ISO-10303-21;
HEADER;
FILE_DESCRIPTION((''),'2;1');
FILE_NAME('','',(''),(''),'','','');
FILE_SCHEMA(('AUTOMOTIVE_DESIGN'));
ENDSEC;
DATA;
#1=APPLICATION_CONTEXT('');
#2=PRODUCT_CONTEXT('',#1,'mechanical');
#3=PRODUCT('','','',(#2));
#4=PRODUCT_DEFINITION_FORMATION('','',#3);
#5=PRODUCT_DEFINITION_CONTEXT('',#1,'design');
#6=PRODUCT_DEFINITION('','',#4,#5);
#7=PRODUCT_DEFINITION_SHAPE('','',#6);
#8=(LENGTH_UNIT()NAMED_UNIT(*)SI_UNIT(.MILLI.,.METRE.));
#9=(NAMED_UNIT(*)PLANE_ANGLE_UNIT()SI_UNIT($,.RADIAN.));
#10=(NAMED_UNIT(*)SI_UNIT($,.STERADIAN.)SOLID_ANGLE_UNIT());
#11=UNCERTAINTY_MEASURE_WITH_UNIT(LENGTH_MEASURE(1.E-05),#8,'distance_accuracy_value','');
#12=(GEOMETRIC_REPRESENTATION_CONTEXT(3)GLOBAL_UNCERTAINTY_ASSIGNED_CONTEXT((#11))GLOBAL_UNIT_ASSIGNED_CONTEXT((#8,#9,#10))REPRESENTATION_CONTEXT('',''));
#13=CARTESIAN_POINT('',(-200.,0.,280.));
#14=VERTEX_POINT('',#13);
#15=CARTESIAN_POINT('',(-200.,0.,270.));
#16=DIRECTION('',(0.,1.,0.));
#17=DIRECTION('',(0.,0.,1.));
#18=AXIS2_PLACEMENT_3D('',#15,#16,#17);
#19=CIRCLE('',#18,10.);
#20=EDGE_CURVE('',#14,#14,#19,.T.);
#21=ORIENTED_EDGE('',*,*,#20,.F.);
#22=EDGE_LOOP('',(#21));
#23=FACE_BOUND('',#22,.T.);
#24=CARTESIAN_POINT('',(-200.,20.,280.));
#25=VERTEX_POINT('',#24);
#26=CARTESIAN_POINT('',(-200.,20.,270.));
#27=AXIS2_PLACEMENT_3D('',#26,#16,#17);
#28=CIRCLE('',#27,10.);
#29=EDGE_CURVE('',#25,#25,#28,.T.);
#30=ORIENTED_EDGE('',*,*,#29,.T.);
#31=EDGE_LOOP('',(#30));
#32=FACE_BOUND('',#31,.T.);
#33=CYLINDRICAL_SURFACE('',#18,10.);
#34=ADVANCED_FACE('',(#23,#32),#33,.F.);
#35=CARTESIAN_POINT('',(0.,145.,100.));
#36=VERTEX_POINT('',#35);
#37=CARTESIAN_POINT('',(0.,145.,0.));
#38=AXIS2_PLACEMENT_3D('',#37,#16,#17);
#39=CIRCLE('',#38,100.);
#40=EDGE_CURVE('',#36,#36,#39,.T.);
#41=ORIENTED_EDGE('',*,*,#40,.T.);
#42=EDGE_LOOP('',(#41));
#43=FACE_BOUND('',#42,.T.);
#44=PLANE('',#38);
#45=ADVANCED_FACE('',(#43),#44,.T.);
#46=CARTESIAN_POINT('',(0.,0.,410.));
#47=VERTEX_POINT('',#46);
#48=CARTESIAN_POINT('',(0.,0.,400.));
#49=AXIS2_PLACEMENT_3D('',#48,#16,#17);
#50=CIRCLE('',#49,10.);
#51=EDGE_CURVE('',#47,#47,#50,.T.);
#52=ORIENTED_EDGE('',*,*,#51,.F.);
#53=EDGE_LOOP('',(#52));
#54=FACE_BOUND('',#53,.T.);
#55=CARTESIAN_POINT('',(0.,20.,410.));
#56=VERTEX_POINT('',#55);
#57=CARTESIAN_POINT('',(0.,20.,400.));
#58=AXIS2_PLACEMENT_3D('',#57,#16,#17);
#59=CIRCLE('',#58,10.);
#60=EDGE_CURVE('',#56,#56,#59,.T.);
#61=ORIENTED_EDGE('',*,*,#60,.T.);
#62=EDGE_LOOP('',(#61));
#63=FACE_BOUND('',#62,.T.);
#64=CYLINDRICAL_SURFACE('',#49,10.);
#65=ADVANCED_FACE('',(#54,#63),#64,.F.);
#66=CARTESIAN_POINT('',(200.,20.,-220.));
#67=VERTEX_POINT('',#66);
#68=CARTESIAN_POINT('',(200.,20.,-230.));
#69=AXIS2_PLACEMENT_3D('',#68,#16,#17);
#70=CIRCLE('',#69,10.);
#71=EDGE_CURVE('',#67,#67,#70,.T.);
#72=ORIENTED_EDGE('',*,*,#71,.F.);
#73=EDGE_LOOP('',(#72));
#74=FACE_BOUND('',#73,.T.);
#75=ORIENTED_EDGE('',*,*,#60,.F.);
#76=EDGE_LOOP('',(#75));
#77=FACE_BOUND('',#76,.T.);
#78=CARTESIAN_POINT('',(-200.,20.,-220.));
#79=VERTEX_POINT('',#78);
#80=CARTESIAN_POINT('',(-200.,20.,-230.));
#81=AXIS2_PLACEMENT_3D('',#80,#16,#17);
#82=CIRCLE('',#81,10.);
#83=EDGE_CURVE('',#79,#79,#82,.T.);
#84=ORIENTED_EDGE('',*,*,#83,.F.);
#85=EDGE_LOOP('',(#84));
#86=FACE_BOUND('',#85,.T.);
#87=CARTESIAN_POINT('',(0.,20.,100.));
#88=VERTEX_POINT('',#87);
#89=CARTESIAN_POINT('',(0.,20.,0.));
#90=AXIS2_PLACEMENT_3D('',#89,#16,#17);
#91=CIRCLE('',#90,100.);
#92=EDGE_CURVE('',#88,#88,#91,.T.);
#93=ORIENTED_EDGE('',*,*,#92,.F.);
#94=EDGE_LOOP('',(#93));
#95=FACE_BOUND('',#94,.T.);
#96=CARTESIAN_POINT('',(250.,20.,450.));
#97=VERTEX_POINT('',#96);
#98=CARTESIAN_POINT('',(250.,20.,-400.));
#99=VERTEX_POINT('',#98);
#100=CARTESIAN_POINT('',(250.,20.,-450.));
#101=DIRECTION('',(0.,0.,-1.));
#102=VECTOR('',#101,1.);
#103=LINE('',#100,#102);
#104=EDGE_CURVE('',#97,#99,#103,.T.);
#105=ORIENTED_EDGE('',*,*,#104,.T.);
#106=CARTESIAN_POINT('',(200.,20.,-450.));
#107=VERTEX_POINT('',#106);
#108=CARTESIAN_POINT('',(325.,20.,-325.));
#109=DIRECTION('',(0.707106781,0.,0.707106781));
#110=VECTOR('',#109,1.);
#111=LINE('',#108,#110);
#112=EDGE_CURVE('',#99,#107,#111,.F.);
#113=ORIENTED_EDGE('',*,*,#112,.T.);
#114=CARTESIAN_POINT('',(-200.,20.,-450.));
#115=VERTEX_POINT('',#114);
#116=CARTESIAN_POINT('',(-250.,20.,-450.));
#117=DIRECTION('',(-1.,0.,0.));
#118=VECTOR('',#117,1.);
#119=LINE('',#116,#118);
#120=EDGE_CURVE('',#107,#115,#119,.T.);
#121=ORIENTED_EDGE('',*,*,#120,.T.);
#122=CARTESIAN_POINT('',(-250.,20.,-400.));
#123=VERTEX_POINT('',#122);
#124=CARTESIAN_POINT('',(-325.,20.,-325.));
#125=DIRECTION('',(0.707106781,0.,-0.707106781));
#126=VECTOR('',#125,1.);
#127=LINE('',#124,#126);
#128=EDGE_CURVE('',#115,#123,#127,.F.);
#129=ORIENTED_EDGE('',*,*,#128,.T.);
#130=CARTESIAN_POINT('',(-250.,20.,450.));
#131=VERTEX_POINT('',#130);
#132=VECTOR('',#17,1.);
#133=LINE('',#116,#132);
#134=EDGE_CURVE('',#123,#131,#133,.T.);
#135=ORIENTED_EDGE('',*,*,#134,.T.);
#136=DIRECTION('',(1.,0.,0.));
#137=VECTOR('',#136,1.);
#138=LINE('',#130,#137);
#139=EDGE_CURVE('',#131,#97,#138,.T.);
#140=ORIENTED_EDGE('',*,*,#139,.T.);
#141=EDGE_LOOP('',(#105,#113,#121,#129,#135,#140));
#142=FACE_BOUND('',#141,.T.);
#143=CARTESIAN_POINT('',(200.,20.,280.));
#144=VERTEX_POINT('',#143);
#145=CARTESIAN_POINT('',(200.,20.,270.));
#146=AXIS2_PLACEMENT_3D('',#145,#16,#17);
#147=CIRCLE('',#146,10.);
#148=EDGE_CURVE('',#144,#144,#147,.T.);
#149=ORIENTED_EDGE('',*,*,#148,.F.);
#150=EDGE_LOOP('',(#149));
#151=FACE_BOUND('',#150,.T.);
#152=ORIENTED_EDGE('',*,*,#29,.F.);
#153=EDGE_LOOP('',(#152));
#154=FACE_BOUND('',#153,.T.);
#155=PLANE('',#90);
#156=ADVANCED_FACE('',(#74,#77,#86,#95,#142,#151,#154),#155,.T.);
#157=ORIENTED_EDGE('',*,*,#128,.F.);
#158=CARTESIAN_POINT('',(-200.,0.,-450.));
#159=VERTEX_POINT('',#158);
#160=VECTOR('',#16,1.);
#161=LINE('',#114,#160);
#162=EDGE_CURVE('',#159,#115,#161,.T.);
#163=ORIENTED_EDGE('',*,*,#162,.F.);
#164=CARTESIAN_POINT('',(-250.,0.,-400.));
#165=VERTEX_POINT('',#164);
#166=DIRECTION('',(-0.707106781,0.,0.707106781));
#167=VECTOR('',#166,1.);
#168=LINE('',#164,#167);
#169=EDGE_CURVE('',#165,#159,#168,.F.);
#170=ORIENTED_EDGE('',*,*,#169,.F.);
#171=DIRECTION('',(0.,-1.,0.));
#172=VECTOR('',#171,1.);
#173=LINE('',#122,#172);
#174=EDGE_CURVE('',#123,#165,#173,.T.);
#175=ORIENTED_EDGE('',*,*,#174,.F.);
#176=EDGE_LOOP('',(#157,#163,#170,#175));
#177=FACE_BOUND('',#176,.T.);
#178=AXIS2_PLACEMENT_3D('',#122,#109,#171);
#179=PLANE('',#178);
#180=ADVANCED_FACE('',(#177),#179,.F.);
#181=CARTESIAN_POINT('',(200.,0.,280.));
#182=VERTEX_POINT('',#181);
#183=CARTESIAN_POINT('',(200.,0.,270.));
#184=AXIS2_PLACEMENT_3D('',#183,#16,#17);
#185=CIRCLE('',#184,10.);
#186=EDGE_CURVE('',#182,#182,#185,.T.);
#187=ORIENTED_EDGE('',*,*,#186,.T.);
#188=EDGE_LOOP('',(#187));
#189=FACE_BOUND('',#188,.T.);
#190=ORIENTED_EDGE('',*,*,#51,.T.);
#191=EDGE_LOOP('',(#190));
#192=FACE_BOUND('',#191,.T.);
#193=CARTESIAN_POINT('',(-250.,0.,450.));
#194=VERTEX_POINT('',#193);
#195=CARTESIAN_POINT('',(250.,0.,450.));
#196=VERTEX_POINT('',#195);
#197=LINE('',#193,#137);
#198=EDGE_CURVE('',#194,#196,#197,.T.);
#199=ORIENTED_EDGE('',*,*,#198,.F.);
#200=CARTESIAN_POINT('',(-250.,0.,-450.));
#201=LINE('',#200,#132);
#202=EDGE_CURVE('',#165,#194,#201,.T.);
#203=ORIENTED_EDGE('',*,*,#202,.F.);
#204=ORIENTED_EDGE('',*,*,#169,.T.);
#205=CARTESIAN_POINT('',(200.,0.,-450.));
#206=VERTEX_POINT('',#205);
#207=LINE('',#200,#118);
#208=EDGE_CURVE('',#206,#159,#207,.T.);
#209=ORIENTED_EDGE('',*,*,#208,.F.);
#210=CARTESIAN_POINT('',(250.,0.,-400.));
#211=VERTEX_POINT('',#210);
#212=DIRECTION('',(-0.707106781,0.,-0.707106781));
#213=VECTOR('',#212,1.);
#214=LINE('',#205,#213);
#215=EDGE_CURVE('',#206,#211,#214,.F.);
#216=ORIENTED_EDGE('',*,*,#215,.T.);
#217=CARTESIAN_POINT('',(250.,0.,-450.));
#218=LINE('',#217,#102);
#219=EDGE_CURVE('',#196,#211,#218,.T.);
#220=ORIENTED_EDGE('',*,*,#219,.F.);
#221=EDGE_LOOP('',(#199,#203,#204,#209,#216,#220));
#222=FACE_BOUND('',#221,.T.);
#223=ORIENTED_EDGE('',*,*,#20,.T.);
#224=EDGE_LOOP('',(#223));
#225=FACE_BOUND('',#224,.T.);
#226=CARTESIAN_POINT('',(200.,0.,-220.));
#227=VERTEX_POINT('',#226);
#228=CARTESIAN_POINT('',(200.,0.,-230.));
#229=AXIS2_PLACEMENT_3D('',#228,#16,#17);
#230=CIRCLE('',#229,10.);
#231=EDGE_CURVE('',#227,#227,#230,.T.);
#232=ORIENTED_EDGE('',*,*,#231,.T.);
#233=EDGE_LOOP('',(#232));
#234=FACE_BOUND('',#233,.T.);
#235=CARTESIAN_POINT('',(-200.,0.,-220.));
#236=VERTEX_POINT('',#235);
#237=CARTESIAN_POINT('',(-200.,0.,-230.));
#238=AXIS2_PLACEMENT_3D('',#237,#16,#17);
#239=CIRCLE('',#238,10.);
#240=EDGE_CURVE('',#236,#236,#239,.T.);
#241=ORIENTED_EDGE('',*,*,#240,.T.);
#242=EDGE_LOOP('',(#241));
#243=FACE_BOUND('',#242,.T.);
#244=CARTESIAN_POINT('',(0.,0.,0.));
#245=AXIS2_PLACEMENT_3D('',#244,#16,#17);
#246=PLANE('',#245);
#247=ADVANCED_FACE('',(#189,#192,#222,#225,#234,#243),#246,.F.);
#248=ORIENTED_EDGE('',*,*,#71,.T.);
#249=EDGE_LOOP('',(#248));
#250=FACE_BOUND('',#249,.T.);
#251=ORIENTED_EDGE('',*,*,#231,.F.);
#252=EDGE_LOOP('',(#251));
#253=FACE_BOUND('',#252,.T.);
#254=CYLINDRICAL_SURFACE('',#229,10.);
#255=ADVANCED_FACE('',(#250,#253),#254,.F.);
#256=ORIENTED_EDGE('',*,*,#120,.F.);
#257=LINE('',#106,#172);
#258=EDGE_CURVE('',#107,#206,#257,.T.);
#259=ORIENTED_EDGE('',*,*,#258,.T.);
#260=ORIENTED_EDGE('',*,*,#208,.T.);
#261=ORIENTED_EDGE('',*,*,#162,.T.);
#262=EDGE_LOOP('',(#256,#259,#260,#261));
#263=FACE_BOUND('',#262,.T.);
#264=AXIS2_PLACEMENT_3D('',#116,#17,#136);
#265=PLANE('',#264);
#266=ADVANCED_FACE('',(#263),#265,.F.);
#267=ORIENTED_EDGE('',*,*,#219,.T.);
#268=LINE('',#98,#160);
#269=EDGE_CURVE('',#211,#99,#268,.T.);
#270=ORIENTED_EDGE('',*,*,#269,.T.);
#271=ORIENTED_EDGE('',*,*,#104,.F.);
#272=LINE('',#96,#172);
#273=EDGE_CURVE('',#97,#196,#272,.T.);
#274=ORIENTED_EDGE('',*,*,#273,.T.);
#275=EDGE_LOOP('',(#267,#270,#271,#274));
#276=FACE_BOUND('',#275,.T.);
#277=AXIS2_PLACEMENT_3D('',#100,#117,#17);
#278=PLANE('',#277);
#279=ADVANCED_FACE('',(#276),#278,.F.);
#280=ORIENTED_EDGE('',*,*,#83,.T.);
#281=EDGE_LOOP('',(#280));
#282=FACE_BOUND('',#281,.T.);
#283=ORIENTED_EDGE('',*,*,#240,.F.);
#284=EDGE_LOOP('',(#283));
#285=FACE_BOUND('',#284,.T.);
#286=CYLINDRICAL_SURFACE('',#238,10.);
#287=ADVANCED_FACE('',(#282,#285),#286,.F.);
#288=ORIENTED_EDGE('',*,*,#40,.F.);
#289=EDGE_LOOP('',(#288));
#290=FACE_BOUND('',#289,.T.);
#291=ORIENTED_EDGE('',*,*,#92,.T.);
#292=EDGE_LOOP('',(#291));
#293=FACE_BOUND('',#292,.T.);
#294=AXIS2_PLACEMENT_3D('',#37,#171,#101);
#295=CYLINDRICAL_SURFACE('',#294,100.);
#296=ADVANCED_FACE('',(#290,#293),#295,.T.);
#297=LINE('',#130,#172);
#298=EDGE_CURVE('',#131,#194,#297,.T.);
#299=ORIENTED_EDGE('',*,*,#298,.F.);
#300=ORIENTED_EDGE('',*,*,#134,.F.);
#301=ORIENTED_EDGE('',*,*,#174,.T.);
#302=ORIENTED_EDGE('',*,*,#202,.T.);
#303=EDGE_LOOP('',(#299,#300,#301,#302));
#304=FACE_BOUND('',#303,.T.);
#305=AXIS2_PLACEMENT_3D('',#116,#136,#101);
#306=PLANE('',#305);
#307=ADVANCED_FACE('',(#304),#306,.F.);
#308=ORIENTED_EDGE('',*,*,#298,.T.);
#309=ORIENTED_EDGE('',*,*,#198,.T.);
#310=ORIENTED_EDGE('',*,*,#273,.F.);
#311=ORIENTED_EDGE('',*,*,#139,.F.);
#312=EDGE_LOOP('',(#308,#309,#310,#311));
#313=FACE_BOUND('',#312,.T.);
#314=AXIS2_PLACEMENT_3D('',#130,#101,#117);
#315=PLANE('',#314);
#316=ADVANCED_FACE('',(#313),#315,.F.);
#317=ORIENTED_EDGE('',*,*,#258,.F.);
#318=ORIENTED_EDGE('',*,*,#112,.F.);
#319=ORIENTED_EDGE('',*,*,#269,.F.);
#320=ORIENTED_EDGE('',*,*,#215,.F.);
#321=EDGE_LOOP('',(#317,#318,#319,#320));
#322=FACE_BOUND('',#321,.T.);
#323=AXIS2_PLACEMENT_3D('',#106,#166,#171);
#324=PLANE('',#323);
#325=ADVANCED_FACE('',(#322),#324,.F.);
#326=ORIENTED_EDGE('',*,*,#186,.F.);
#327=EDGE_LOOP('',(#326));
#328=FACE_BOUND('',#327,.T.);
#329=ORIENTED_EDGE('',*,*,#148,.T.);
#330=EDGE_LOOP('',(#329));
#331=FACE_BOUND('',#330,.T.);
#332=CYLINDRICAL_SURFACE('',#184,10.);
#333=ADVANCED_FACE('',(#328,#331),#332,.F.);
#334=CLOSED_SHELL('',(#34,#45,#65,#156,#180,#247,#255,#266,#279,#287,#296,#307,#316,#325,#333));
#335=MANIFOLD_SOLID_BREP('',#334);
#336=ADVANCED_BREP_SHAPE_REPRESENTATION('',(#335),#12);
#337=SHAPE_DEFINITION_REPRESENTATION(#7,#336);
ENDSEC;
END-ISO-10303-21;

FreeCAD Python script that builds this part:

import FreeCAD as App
import Part
import Sketcher
from FreeCAD import Vector


def edges_at(feature, points):
    """Names of the edges that pass closest to the given points."""
    edges = feature.Shape.Edges
    near = lambda p: min(range(len(edges)), key=lambda i: edges[i].distToShape(Part.Vertex(*p))[0])
    return sorted({f"Edge{near(p) + 1}" for p in points})

doc = App.newDocument("Part")
body = doc.addObject("PartDesign::Body", "Body")

sketch1 = body.newObject("Sketcher::SketchObject", "Sketch")
sketch1.AttachmentSupport = (doc.getObject("XZ_Plane"), [""])
sketch1.MapMode = "FlatFace"
sketch1.addGeometry([
    Part.LineSegment(Vector(-250, -450, 0), Vector(-250, 450, 0)),
    Part.LineSegment(Vector(-250, 450, 0), Vector(250, 450, 0)),
    Part.LineSegment(Vector(250, 450, 0), Vector(250, -450, 0)),
    Part.LineSegment(Vector(250, -450, 0), Vector(-250, -450, 0)),
], False)
sketch1.addConstraint([
    Sketcher.Constraint("Coincident", 0, 2, 1, 1),
    Sketcher.Constraint("Coincident", 1, 2, 2, 1),
    Sketcher.Constraint("Coincident", 2, 2, 3, 1),
    Sketcher.Constraint("Coincident", 3, 2, 0, 1),
    Sketcher.Constraint("Vertical", 0),
    Sketcher.Constraint("Horizontal", 1),
    Sketcher.Constraint("Vertical", 2),
    Sketcher.Constraint("Horizontal", 3),
    Sketcher.Constraint("Symmetric", 0, 2, 2, 2, -1, 1),
    Sketcher.Constraint("DistanceX", 1, 1, 1, 2, 500.0),
    Sketcher.Constraint("DistanceY", 0, 1, 0, 2, 900.0),
])
pad1 = body.newObject("PartDesign::Pad", "Pad")
pad1.Profile = sketch1
pad1.Length = 20
pad1.Reversed = True
doc.recompute()

chamfer = body.newObject("PartDesign::Chamfer", "Chamfer")
chamfer.Base = (pad1, edges_at(pad1, [(-250, 10, -450), (250, 10, -450)]))
chamfer.Size = 50

sketch2 = body.newObject("Sketcher::SketchObject", "Sketch001")
sketch2.AttachmentSupport = (doc.getObject("XZ_Plane"), [""])
sketch2.MapMode = "FlatFace"
sketch2.AttachmentOffset = App.Placement(Vector(0, 0, -20), App.Rotation())
sketch2.addGeometry([
    Part.Circle(Vector(200, -230, 0), Vector(0, 0, 1), 10),
    Part.Circle(Vector(-200, -230, 0), Vector(0, 0, 1), 10),
    Part.Circle(Vector(200, 270, 0), Vector(0, 0, 1), 10),
    Part.Circle(Vector(-200, 270, 0), Vector(0, 0, 1), 10),
], False)
sketch2.addConstraint([
    Sketcher.Constraint("Equal", 0, 1),
    Sketcher.Constraint("Equal", 1, 2),
    Sketcher.Constraint("Equal", 2, 3),
    Sketcher.Constraint("Symmetric", 0, 3, 1, 3, -2),
    Sketcher.Constraint("Symmetric", 2, 3, 3, 3, -2),
    Sketcher.Constraint("Vertical", 0, 3, 2, 3),
    Sketcher.Constraint("Diameter", 0, 20.0),
    Sketcher.Constraint("DistanceX", -1, 1, 0, 3, 200.0),
    Sketcher.Constraint("DistanceY", 0, 3, -1, 1, 230.0),
    Sketcher.Constraint("DistanceY", -1, 1, 2, 3, 270.0),
])
pocket1 = body.newObject("PartDesign::Pocket", "Pocket")
pocket1.Profile = sketch2
pocket1.Type = "ThroughAll"
pocket1.Reversed = True

sketch3 = body.newObject("Sketcher::SketchObject", "Sketch002")
sketch3.AttachmentSupport = (doc.getObject("XZ_Plane"), [""])
sketch3.MapMode = "FlatFace"
sketch3.AttachmentOffset = App.Placement(Vector(0, 0, -20), App.Rotation())
sketch3.addGeometry(Part.Circle(Vector(0, 0, 0), Vector(0, 0, 1), 100), False)
sketch3.addConstraint([
    Sketcher.Constraint("Coincident", 0, 3, -1, 1),
    Sketcher.Constraint("Diameter", 0, 200.0),
])
pad2 = body.newObject("PartDesign::Pad", "Pad001")
pad2.Profile = sketch3
pad2.Length = 125
pad2.Reversed = True

sketch4 = body.newObject("Sketcher::SketchObject", "Sketch003")
sketch4.AttachmentSupport = (doc.getObject("XZ_Plane"), [""])
sketch4.MapMode = "FlatFace"
sketch4.AttachmentOffset = App.Placement(Vector(0, 0, -20), App.Rotation())
sketch4.addGeometry(Part.Circle(Vector(0, 400, 0), Vector(0, 0, 1), 10), False)
sketch4.addConstraint([
    Sketcher.Constraint("PointOnObject", 0, 3, -2),
    Sketcher.Constraint("Diameter", 0, 20.0),
    Sketcher.Constraint("DistanceY", -1, 1, 0, 3, 400.0),
])
pocket2 = body.newObject("PartDesign::Pocket", "Pocket001")
pocket2.Profile = sketch4
pocket2.Type = "ThroughAll"
pocket2.Reversed = True

doc.recompute()
